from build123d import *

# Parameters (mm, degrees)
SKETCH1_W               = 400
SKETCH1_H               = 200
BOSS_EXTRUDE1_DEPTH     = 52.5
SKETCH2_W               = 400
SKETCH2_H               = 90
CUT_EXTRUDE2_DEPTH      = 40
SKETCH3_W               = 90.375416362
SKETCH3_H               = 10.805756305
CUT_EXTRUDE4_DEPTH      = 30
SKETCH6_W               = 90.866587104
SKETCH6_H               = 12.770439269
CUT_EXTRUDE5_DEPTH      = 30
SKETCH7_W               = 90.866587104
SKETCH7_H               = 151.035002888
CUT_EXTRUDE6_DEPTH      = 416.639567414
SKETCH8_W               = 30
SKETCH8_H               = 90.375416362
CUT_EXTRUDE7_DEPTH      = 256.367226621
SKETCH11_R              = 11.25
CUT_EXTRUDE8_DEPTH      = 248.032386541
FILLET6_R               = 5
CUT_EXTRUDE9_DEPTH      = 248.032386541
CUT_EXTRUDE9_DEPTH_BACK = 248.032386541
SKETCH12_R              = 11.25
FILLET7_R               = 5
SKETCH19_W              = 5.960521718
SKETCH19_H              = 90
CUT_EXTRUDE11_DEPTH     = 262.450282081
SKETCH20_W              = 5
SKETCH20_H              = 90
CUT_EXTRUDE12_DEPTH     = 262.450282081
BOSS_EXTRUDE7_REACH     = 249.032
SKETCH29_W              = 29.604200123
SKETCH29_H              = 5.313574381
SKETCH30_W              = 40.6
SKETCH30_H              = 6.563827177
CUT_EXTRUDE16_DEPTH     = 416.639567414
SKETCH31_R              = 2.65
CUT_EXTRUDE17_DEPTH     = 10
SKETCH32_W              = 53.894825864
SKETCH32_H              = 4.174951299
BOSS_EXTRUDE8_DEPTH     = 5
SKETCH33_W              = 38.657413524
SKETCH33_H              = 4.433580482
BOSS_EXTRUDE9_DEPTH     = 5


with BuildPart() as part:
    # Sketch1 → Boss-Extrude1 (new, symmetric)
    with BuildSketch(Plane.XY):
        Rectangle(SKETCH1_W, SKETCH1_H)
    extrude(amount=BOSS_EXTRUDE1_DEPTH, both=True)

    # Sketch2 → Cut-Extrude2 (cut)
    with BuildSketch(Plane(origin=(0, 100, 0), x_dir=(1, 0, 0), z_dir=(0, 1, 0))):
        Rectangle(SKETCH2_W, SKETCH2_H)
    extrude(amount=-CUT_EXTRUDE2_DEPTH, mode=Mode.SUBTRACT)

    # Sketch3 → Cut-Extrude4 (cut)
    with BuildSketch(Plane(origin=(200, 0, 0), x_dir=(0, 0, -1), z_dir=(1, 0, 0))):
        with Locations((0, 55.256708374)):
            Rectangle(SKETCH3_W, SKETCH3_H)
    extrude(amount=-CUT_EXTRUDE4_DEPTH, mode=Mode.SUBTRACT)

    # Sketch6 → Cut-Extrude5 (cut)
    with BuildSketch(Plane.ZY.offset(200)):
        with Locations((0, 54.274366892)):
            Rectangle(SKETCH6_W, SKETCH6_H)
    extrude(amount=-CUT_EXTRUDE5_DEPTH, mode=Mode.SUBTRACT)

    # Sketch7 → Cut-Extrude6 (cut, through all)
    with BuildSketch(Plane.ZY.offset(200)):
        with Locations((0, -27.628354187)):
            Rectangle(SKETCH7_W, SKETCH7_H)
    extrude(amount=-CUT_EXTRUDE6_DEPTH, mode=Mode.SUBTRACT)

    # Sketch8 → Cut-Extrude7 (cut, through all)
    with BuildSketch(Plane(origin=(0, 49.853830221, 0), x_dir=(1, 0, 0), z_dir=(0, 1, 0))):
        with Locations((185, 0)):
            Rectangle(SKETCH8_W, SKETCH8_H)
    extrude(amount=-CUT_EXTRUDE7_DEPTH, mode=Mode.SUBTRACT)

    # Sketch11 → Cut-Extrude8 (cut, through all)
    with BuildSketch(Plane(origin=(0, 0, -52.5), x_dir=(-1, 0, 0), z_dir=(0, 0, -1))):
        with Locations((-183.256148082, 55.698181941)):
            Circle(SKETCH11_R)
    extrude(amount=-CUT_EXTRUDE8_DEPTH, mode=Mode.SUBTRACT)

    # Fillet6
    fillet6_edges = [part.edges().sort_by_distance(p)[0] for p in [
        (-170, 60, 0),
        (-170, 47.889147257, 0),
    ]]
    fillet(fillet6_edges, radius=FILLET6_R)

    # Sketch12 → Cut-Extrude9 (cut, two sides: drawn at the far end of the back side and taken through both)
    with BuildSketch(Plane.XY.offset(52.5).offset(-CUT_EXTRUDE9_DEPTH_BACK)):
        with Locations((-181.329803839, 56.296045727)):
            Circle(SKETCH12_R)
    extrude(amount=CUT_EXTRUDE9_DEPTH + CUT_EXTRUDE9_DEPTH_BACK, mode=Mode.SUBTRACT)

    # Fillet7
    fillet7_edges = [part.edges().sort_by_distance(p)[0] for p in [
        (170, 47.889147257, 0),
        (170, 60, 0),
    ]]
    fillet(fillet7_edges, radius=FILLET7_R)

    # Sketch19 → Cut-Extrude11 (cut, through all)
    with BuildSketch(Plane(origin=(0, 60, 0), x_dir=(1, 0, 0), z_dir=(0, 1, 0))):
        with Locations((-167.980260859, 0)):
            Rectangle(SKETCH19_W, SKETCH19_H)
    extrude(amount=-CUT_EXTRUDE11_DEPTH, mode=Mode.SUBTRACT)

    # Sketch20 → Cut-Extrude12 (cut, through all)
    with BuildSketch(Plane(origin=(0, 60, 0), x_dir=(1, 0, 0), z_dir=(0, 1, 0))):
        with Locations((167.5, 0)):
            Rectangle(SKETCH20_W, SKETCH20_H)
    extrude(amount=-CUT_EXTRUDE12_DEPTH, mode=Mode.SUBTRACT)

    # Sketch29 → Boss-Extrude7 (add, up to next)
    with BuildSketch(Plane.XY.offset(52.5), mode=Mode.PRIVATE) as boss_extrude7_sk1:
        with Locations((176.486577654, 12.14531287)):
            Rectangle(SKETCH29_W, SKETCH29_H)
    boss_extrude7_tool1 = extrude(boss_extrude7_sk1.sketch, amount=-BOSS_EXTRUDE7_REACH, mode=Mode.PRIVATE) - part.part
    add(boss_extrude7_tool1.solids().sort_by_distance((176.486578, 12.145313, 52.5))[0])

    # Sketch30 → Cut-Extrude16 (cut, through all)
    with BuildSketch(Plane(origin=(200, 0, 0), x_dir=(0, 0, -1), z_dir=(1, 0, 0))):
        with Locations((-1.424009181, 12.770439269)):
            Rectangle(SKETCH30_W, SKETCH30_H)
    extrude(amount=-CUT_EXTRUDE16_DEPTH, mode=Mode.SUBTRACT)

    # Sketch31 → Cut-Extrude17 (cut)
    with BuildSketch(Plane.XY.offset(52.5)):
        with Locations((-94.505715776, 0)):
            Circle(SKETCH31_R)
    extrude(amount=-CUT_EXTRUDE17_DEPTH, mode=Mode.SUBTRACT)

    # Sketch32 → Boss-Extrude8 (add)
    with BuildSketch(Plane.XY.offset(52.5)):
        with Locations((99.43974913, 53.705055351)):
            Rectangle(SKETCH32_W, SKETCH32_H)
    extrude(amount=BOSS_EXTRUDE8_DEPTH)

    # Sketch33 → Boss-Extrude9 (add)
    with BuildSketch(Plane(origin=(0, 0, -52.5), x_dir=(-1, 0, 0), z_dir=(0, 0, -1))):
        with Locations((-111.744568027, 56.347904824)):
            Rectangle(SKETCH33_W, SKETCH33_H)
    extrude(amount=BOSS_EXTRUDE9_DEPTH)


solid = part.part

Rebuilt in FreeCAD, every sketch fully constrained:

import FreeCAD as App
import Part
import Sketcher

V = App.Vector


def edges_at(feature, points):
    """Names of the edges that pass closest to the given points."""
    edges = feature.Shape.Edges
    near = lambda p: min(range(len(edges)), key=lambda i: edges[i].distToShape(Part.Vertex(*p))[0])
    return sorted({f"Edge{near(p) + 1}" for p in points})


def add_polygon(sketch, points):
    """Adds a closed chain of lines whose ends are joined by coincident constraints."""
    first, n = sketch.GeometryCount, len(points)
    for a, b in zip(points, points[1:] + points[:1]):
        sketch.addGeometry(Part.LineSegment(App.Vector(*a, 0), App.Vector(*b, 0)), False)
    for i in range(n):
        sketch.addConstraint(Sketcher.Constraint("Coincident", first + i, 2, first + (i + 1) % n, 1))

doc = App.newDocument("Part")
params = doc.addObject("Spreadsheet::Sheet", "Params")
for row, (alias, value) in enumerate([
    ("sketch1_width", "400 mm"),
    ("sketch1_height", "200 mm"),
    ("pad1_length", "105 mm"),
    ("sketch2_width", "400 mm"),
    ("sketch2_height", "90 mm"),
    ("pocket1_length", "40 mm"),
    ("pocket2_length", "30 mm"),
    ("pocket3_length", "30 mm"),
    ("sketch6_width", "30 mm"),
    ("sketch7_diameter", "22.5 mm"),
    ("fillet_radius", "5 mm"),
    ("sketch8_diameter", "22.5 mm"),
    ("fillet2_radius", "5 mm"),
    ("sketch9_height", "90 mm"),
    ("sketch10_width", "5 mm"),
    ("sketch10_height", "90 mm"),
    ("pad2_length", "97.933294 mm"),
    ("sketch12_height", "40.6 mm"),
    ("sketch13_diameter", "5.3 mm"),
    ("pocket11_length", "10 mm"),
    ("pad3_length", "5 mm"),
    ("pad4_length", "5 mm"),
], start=1):
    params.set(f"A{row}", alias)
    params.set(f"B{row}", "=" + value)
    params.setAlias(f"B{row}", alias)

body = doc.addObject("PartDesign::Body", "Body")

sketch1 = body.newObject("Sketcher::SketchObject", "Sketch")
sketch1.AttachmentSupport = (doc.getObject("XY_Plane"), [""])
sketch1.MapMode = "FlatFace"
add_polygon(sketch1, [(-200, 100), (-200, -100), (200, -100), (200, 100)])
sketch1.addConstraint(Sketcher.Constraint("Vertical", 0))
sketch1.addConstraint(Sketcher.Constraint("Horizontal", 1))
sketch1.addConstraint(Sketcher.Constraint("Vertical", 2))
sketch1.addConstraint(Sketcher.Constraint("Horizontal", 3))
sketch1.addConstraint(Sketcher.Constraint("Symmetric", 0, 2, 2, 2, -1, 1))
sketch1.addConstraint(Sketcher.Constraint("DistanceX", 1, 1, 1, 2, 400.0))
sketch1.addConstraint(Sketcher.Constraint("DistanceY", 0, 2, 0, 1, 200.0))
sketch1.setExpression("Constraints[9]", "Params.sketch1_width")
sketch1.setExpression("Constraints[10]", "Params.sketch1_height")
pad1 = body.newObject("PartDesign::Pad", "Pad")
pad1.Profile = sketch1
pad1.setExpression("Length", "Params.pad1_length")
pad1.Midplane = True

sketch2 = body.newObject("Sketcher::SketchObject", "Sketch001")
sketch2.AttachmentSupport = (doc.getObject("XZ_Plane"), [""])
sketch2.MapMode = "FlatFace"
sketch2.AttachmentOffset = App.Placement(V(0, 0, -100), App.Rotation())
add_polygon(sketch2, [(-200, -45), (-200, 45), (200, 45), (200, -45)])
sketch2.addConstraint(Sketcher.Constraint("Vertical", 0))
sketch2.addConstraint(Sketcher.Constraint("Horizontal", 1))
sketch2.addConstraint(Sketcher.Constraint("Vertical", 2))
sketch2.addConstraint(Sketcher.Constraint("Horizontal", 3))
sketch2.addConstraint(Sketcher.Constraint("Symmetric", 0, 2, 2, 2, -1, 1))
sketch2.addConstraint(Sketcher.Constraint("DistanceX", 1, 1, 1, 2, 400.0))
sketch2.addConstraint(Sketcher.Constraint("DistanceY", 0, 1, 0, 2, 90.0))
sketch2.setExpression("Constraints[9]", "Params.sketch2_width")
sketch2.setExpression("Constraints[10]", "Params.sketch2_height")
pocket1 = body.newObject("PartDesign::Pocket", "Pocket")
pocket1.Profile = sketch2
pocket1.setExpression("Length", "Params.pocket1_length")
pocket1.Reversed = True

sketch3 = body.newObject("Sketcher::SketchObject", "Sketch002")
sketch3.AttachmentSupport = (doc.getObject("YZ_Plane"), [""])
sketch3.MapMode = "FlatFace"
sketch3.AttachmentOffset = App.Placement(V(0, 0, 200), App.Rotation())
add_polygon(sketch3, [(61, 45), (50, 45), (50, -45), (61, -45)])
sketch3.addConstraint(Sketcher.Constraint("Horizontal", 0))
sketch3.addConstraint(Sketcher.Constraint("Vertical", 1))
sketch3.addConstraint(Sketcher.Constraint("Horizontal", 2))
sketch3.addConstraint(Sketcher.Constraint("Vertical", 3))
sketch3.addConstraint(Sketcher.Constraint("DistanceX", 0, 2, 0, 1, 10.805756))
sketch3.addConstraint(Sketcher.Constraint("DistanceY", 1, 2, 1, 1, 90.375416))
sketch3.addConstraint(Sketcher.Constraint("DistanceX", -1, 1, 0, 2, 49.85383))
sketch3.addConstraint(Sketcher.Constraint("DistanceY", -1, 1, 0, 2, 45.187708))
pocket2 = body.newObject("PartDesign::Pocket", "Pocket001")
pocket2.Profile = sketch3
pocket2.setExpression("Length", "Params.pocket2_length")

sketch4 = body.newObject("Sketcher::SketchObject", "Sketch003")
sketch4.AttachmentSupport = (doc.getObject("YZ_Plane"), [""])
sketch4.MapMode = "FlatFace"
sketch4.AttachmentOffset = App.Placement(V(0, 0, -200), App.Rotation())
add_polygon(sketch4, [(61, -45), (48, -45), (48, 45), (61, 45)])
sketch4.addConstraint(Sketcher.Constraint("Horizontal", 0))
sketch4.addConstraint(Sketcher.Constraint("Vertical", 1))
sketch4.addConstraint(Sketcher.Constraint("Horizontal", 2))
sketch4.addConstraint(Sketcher.Constraint("Vertical", 3))
sketch4.addConstraint(Sketcher.Constraint("DistanceX", 0, 2, 0, 1, 12.770439))
sketch4.addConstraint(Sketcher.Constraint("DistanceY", 1, 1, 1, 2, 90.866587))
sketch4.addConstraint(Sketcher.Constraint("DistanceX", -1, 1, 0, 2, 47.889147))
sketch4.addConstraint(Sketcher.Constraint("DistanceY", 0, 2, -1, 1, 45.433294))
pocket3 = body.newObject("PartDesign::Pocket", "Pocket002")
pocket3.Profile = sketch4
pocket3.setExpression("Length", "Params.pocket3_length")
pocket3.Reversed = True

sketch5 = body.newObject("Sketcher::SketchObject", "Sketch004")
sketch5.AttachmentSupport = (doc.getObject("YZ_Plane"), [""])
sketch5.MapMode = "FlatFace"
sketch5.AttachmentOffset = App.Placement(V(0, 0, -200), App.Rotation())
add_polygon(sketch5, [(48, -45), (-103, -45), (-103, 45), (48, 45)])
sketch5.addConstraint(Sketcher.Constraint("Horizontal", 0))
sketch5.addConstraint(Sketcher.Constraint("Vertical", 1))
sketch5.addConstraint(Sketcher.Constraint("Horizontal", 2))
sketch5.addConstraint(Sketcher.Constraint("Vertical", 3))
sketch5.addConstraint(Sketcher.Constraint("DistanceX", 0, 2, 0, 1, 151.035003))
sketch5.addConstraint(Sketcher.Constraint("DistanceY", 1, 1, 1, 2, 90.866587))
sketch5.addConstraint(Sketcher.Constraint("DistanceX", 0, 2, -1, 1, 103.145856))
sketch5.addConstraint(Sketcher.Constraint("DistanceY", 0, 2, -1, 1, 45.433294))
pocket4 = body.newObject("PartDesign::Pocket", "Pocket003")
pocket4.Profile = sketch5
pocket4.Type = "ThroughAll"
pocket4.Reversed = True

sketch6 = body.newObject("Sketcher::SketchObject", "Sketch005")
sketch6.AttachmentSupport = (doc.getObject("XZ_Plane"), [""])
sketch6.MapMode = "FlatFace"
sketch6.AttachmentOffset = App.Placement(V(0, 0, -49.85383), App.Rotation())
add_polygon(sketch6, [(170, -45), (170, 45), (200, 45), (200, -45)])
sketch6.addConstraint(Sketcher.Constraint("Vertical", 0))
sketch6.addConstraint(Sketcher.Constraint("Horizontal", 1))
sketch6.addConstraint(Sketcher.Constraint("Vertical", 2))
sketch6.addConstraint(Sketcher.Constraint("Horizontal", 3))
sketch6.addConstraint(Sketcher.Constraint("DistanceX", 1, 1, 1, 2, 30.0))
sketch6.addConstraint(Sketcher.Constraint("DistanceX", -1, 1, 0, 2, 170.0))
sketch6.addConstraint(Sketcher.Constraint("DistanceY", 0, 1, 0, 2, 90.375416))
sketch6.addConstraint(Sketcher.Constraint("DistanceY", -1, 1, 0, 2, 45.187708))
sketch6.setExpression("Constraints[8]", "Params.sketch6_width")
pocket5 = body.newObject("PartDesign::Pocket", "Pocket004")
pocket5.Profile = sketch6
pocket5.Type = "ThroughAll"
pocket5.Reversed = True

sketch7 = body.newObject("Sketcher::SketchObject", "Sketch006")
sketch7.AttachmentSupport = (doc.getObject("XY_Plane"), [""])
sketch7.MapMode = "FlatFace"
sketch7.AttachmentOffset = App.Placement(V(0, 0, -52.5), App.Rotation())
sketch7.addGeometry(Part.Circle(V(183, 56, 0), V(0, 0, 1), 11), False)
sketch7.addConstraint(Sketcher.Constraint("Diameter", 0, 22.5))
sketch7.addConstraint(Sketcher.Constraint("DistanceX", -1, 1, 0, 3, 183.256148))
sketch7.addConstraint(Sketcher.Constraint("DistanceY", -1, 1, 0, 3, 55.698182))
sketch7.setExpression("Constraints[0]", "Params.sketch7_diameter")
pocket6 = body.newObject("PartDesign::Pocket", "Pocket005")
pocket6.Profile = sketch7
pocket6.Type = "ThroughAll"
pocket6.Reversed = True
doc.recompute()

fillet = body.newObject("PartDesign::Fillet", "Fillet")
fillet.Base = (pocket6, edges_at(pocket6, [(-170, 60, 0), (-170, 47.889, 0)]))
fillet.setExpression("Radius", "Params.fillet_radius")

sketch8 = body.newObject("Sketcher::SketchObject", "Sketch007")
sketch8.AttachmentSupport = (doc.getObject("XY_Plane"), [""])
sketch8.MapMode = "FlatFace"
sketch8.AttachmentOffset = App.Placement(V(0, 0, 52.5), App.Rotation())
sketch8.addGeometry(Part.Circle(V(-181, 56, 0), V(0, 0, 1), 11), False)
sketch8.addConstraint(Sketcher.Constraint("Diameter", 0, 22.5))
sketch8.addConstraint(Sketcher.Constraint("DistanceX", 0, 3, -1, 1, 181.329804))
sketch8.addConstraint(Sketcher.Constraint("DistanceY", -1, 1, 0, 3, 56.296046))
sketch8.setExpression("Constraints[0]", "Params.sketch8_diameter")
pocket7 = body.newObject("PartDesign::Pocket", "Pocket006")
pocket7.Profile = sketch8
pocket7.Type = "ThroughAll"
pocket7.Midplane = True
doc.recompute()

fillet2 = body.newObject("PartDesign::Fillet", "Fillet001")
fillet2.Base = (pocket7, edges_at(pocket7, [(170, 47.889, 0), (170, 60, 0)]))
fillet2.setExpression("Radius", "Params.fillet2_radius")

sketch9 = body.newObject("Sketcher::SketchObject", "Sketch008")
sketch9.AttachmentSupport = (doc.getObject("XZ_Plane"), [""])
sketch9.MapMode = "FlatFace"
sketch9.AttachmentOffset = App.Placement(V(0, 0, -60), App.Rotation())
add_polygon(sketch9, [(-171, -45), (-171, 45), (-165, 45), (-165, -45)])
sketch9.addConstraint(Sketcher.Constraint("Vertical", 0))
sketch9.addConstraint(Sketcher.Constraint("Horizontal", 1))
sketch9.addConstraint(Sketcher.Constraint("Vertical", 2))
sketch9.addConstraint(Sketcher.Constraint("Horizontal", 3))
sketch9.addConstraint(Sketcher.Constraint("DistanceY", 0, 1, 0, 2, 90.0))
sketch9.addConstraint(Sketcher.Constraint("DistanceY", -1, 1, 0, 2, 45.0))
sketch9.addConstraint(Sketcher.Constraint("DistanceX", 1, 2, -1, 1, 165.0))
sketch9.addConstraint(Sketcher.Constraint("DistanceX", 1, 1, 1, 2, 5.960522))
sketch9.setExpression("Constraints[8]", "Params.sketch9_height")
pocket8 = body.newObject("PartDesign::Pocket", "Pocket007")
pocket8.Profile = sketch9
pocket8.Type = "ThroughAll"
pocket8.Reversed = True

sketch10 = body.newObject("Sketcher::SketchObject", "Sketch009")
sketch10.AttachmentSupport = (doc.getObject("XZ_Plane"), [""])
sketch10.MapMode = "FlatFace"
sketch10.AttachmentOffset = App.Placement(V(0, 0, -60), App.Rotation())
add_polygon(sketch10, [(165, -45), (165, 45), (170, 45), (170, -45)])
sketch10.addConstraint(Sketcher.Constraint("Vertical", 0))
sketch10.addConstraint(Sketcher.Constraint("Horizontal", 1))
sketch10.addConstraint(Sketcher.Constraint("Vertical", 2))
sketch10.addConstraint(Sketcher.Constraint("Horizontal", 3))
sketch10.addConstraint(Sketcher.Constraint("DistanceX", 1, 1, 1, 2, 5.0))
sketch10.addConstraint(Sketcher.Constraint("DistanceY", 0, 1, 0, 2, 90.0))
sketch10.addConstraint(Sketcher.Constraint("DistanceX", -1, 1, 0, 2, 165.0))
sketch10.addConstraint(Sketcher.Constraint("DistanceY", -1, 1, 0, 2, 45.0))
sketch10.setExpression("Constraints[8]", "Params.sketch10_width")
sketch10.setExpression("Constraints[9]", "Params.sketch10_height")
pocket9 = body.newObject("PartDesign::Pocket", "Pocket008")
pocket9.Profile = sketch10
pocket9.Type = "ThroughAll"
pocket9.Reversed = True

sketch11 = body.newObject("Sketcher::SketchObject", "Sketch010")
sketch11.AttachmentSupport = (doc.getObject("XY_Plane"), [""])
sketch11.MapMode = "FlatFace"
sketch11.AttachmentOffset = App.Placement(V(0, 0, 52.5), App.Rotation())
add_polygon(sketch11, [(162, 15), (162, 9), (191, 9), (191, 15)])
sketch11.addConstraint(Sketcher.Constraint("Vertical", 0))
sketch11.addConstraint(Sketcher.Constraint("Horizontal", 1))
sketch11.addConstraint(Sketcher.Constraint("Vertical", 2))
sketch11.addConstraint(Sketcher.Constraint("Horizontal", 3))
sketch11.addConstraint(Sketcher.Constraint("DistanceX", 1, 1, 1, 2, 29.6042))
sketch11.addConstraint(Sketcher.Constraint("DistanceY", -1, 1, 2, 2, 14.8021))
sketch11.addConstraint(Sketcher.Constraint("DistanceY", 0, 2, 0, 1, 5.313574))
sketch11.addConstraint(Sketcher.Constraint("DistanceX", -1, 1, 0, 2, 161.684478))
pad2 = body.newObject("PartDesign::Pad", "Pad001")
pad2.Profile = sketch11
pad2.setExpression("Length", "Params.pad2_length")
pad2.Reversed = True

sketch12 = body.newObject("Sketcher::SketchObject", "Sketch011")
sketch12.AttachmentSupport = (doc.getObject("YZ_Plane"), [""])
sketch12.MapMode = "FlatFace"
sketch12.AttachmentOffset = App.Placement(V(0, 0, 200), App.Rotation())
add_polygon(sketch12, [(16, 22), (9, 22), (9, -19), (16, -19)])
sketch12.addConstraint(Sketcher.Constraint("Horizontal", 0))
sketch12.addConstraint(Sketcher.Constraint("Vertical", 1))
sketch12.addConstraint(Sketcher.Constraint("Horizontal", 2))
sketch12.addConstraint(Sketcher.Constraint("Vertical", 3))
sketch12.addConstraint(Sketcher.Constraint("DistanceY", 1, 2, 1, 1, 40.6))
sketch12.addConstraint(Sketcher.Constraint("DistanceX", 0, 2, 0, 1, 6.563827))
sketch12.addConstraint(Sketcher.Constraint("DistanceY", -1, 1, 0, 2, 21.724009))
sketch12.addConstraint(Sketcher.Constraint("DistanceX", -1, 1, 0, 2, 9.488526))
sketch12.setExpression("Constraints[8]", "Params.sketch12_height")
pocket10 = body.newObject("PartDesign::Pocket", "Pocket009")
pocket10.Profile = sketch12
pocket10.Type = "ThroughAll"

sketch13 = body.newObject("Sketcher::SketchObject", "Sketch012")
sketch13.AttachmentSupport = (doc.getObject("XY_Plane"), [""])
sketch13.MapMode = "FlatFace"
sketch13.AttachmentOffset = App.Placement(V(0, 0, 52.5), App.Rotation())
sketch13.addGeometry(Part.Circle(V(-94.5, 0, 0), V(0, 0, 1), 2.6), False)
sketch13.addConstraint(Sketcher.Constraint("PointOnObject", 0, 3, -1))
sketch13.addConstraint(Sketcher.Constraint("Diameter", 0, 5.3))
sketch13.addConstraint(Sketcher.Constraint("DistanceX", 0, 3, -1, 1, 94.505716))
sketch13.setExpression("Constraints[1]", "Params.sketch13_diameter")
pocket11 = body.newObject("PartDesign::Pocket", "Pocket010")
pocket11.Profile = sketch13
pocket11.setExpression("Length", "Params.pocket11_length")

sketch14 = body.newObject("Sketcher::SketchObject", "Sketch013")
sketch14.AttachmentSupport = (doc.getObject("XY_Plane"), [""])
sketch14.MapMode = "FlatFace"
sketch14.AttachmentOffset = App.Placement(V(0, 0, 52.5), App.Rotation())
add_polygon(sketch14, [(72.5, 55.8), (72.5, 51.6), (126.4, 51.6), (126.4, 55.8)])
sketch14.addConstraint(Sketcher.Constraint("Vertical", 0))
sketch14.addConstraint(Sketcher.Constraint("Horizontal", 1))
sketch14.addConstraint(Sketcher.Constraint("Vertical", 2))
sketch14.addConstraint(Sketcher.Constraint("Horizontal", 3))
sketch14.addConstraint(Sketcher.Constraint("DistanceY", 0, 2, 0, 1, 4.174951))
sketch14.addConstraint(Sketcher.Constraint("DistanceX", 1, 1, 1, 2, 53.894826))
sketch14.addConstraint(Sketcher.Constraint("DistanceY", -1, 1, 0, 2, 51.61758))
sketch14.addConstraint(Sketcher.Constraint("DistanceX", -1, 1, 0, 2, 72.492336))
pad3 = body.newObject("PartDesign::Pad", "Pad002")
pad3.Profile = sketch14
pad3.setExpression("Length", "Params.pad3_length")

sketch15 = body.newObject("Sketcher::SketchObject", "Sketch014")
sketch15.AttachmentSupport = (doc.getObject("XY_Plane"), [""])
sketch15.MapMode = "FlatFace"
sketch15.AttachmentOffset = App.Placement(V(0, 0, -52.5), App.Rotation())
add_polygon(sketch15, [(131.1, 58.6), (131.1, 54.1), (92.4, 54.1), (92.4, 58.6)])
sketch15.addConstraint(Sketcher.Constraint("Vertical", 0))
sketch15.addConstraint(Sketcher.Constraint("Horizontal", 1))
sketch15.addConstraint(Sketcher.Constraint("Vertical", 2))
sketch15.addConstraint(Sketcher.Constraint("Horizontal", 3))
sketch15.addConstraint(Sketcher.Constraint("DistanceY", 0, 2, 0, 1, 4.43358))
sketch15.addConstraint(Sketcher.Constraint("DistanceX", 1, 2, 1, 1, 38.657414))
sketch15.addConstraint(Sketcher.Constraint("DistanceX", -1, 1, 1, 2, 92.415861))
sketch15.addConstraint(Sketcher.Constraint("DistanceY", -1, 1, 0, 2, 54.131115))
pad4 = body.newObject("PartDesign::Pad", "Pad003")
pad4.Profile = sketch15
pad4.setExpression("Length", "Params.pad4_length")
pad4.Reversed = True

doc.recompute()
